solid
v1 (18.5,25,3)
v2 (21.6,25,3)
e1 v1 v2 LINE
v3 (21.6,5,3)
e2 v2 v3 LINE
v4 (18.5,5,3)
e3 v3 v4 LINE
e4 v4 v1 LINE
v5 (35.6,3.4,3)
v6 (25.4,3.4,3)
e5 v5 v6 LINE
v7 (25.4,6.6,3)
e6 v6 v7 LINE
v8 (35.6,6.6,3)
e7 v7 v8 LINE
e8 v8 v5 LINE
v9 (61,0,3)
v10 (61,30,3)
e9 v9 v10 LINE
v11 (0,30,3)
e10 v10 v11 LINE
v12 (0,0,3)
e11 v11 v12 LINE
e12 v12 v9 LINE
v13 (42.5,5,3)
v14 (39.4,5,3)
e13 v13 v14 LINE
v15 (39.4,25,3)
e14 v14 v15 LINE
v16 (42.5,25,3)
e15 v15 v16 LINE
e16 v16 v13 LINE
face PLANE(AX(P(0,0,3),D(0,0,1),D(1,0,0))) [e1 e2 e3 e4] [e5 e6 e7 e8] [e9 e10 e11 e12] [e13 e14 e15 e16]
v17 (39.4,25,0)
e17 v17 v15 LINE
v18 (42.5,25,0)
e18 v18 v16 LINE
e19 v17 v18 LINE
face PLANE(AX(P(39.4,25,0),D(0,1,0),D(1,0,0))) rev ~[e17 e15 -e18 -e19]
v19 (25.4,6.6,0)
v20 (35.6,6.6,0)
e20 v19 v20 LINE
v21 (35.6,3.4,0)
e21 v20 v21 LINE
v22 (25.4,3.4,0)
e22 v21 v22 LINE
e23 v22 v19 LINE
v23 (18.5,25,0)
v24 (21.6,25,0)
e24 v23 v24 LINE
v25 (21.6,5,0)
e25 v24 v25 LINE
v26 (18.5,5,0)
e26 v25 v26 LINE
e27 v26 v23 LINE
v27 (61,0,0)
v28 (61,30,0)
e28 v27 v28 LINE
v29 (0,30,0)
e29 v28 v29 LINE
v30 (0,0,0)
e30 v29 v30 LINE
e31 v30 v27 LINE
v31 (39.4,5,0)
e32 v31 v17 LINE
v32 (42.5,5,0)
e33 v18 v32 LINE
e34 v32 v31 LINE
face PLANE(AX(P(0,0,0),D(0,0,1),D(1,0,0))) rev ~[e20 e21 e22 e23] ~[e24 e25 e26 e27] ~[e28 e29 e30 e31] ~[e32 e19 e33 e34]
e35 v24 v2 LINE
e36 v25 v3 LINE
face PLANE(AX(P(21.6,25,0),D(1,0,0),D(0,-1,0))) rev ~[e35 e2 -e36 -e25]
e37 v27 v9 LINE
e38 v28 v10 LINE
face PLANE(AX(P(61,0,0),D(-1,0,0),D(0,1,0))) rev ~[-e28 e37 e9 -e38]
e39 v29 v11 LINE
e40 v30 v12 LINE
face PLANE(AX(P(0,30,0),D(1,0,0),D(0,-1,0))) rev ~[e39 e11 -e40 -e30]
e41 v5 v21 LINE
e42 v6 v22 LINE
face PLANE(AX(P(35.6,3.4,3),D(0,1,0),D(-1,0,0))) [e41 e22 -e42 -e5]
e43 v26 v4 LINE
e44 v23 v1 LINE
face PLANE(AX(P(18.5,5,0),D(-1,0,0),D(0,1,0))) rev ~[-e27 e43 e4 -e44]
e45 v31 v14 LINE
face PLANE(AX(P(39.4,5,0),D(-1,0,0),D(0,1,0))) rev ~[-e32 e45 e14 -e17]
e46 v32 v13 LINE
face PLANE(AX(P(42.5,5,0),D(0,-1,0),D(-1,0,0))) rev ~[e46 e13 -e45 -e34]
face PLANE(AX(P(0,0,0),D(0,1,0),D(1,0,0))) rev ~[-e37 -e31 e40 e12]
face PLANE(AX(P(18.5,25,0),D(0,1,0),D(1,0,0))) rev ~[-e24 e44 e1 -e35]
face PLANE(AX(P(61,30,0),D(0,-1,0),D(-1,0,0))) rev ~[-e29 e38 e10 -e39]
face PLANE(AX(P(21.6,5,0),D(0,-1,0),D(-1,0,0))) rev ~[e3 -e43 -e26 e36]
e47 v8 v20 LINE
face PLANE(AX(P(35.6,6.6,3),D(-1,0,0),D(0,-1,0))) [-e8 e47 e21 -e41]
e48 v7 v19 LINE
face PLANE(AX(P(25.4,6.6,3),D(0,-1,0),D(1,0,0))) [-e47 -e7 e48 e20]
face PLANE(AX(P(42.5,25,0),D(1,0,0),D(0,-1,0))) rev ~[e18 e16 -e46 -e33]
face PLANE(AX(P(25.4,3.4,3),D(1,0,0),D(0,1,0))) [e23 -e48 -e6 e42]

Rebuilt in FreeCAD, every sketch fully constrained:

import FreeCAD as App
import Part
import Sketcher
Q = App.Units.Quantity


def add_polygon(sketch, points):
    """Adds a closed chain of lines whose ends are joined by coincident constraints."""
    first, n = sketch.GeometryCount, len(points)
    for a, b in zip(points, points[1:] + points[:1]):
        sketch.addGeometry(Part.LineSegment(App.Vector(*a, 0), App.Vector(*b, 0)), False)
    for i in range(n):
        sketch.addConstraint(Sketcher.Constraint("Coincident", first + i, 2, first + (i + 1) % n, 1))

doc = App.newDocument("Part")
params = doc.addObject("Spreadsheet::Sheet", "Params")
for row, (alias, value) in enumerate([
    ("sketch1_width", "61 mm"),
    ("sketch1_height", "30 mm"),
    ("sketch1_width2", "3.1 mm"),
    ("sketch1_height2", "20 mm"),
    ("pad1_length", "3 mm"),
    ("sketch2_width", "10.2 mm"),
    ("sketch2_height", "3.2 mm"),
    ("pocket1_length", "3 mm"),
], start=1):
    params.set(f"A{row}", alias)
    params.set(f"B{row}", "=" + value)
    params.setAlias(f"B{row}", alias)

body = doc.addObject("PartDesign::Body", "Body")

# Sketch on XY plane
sketch1 = body.newObject("Sketcher::SketchObject", "Sketch")
sketch1.AttachmentSupport = (doc.getObject("XY_Plane"), [""])
sketch1.MapMode = "FlatFace"
add_polygon(sketch1, [(0, 30), (0, 0), (61, 0), (61, 30)])  # lines 0-3
add_polygon(sketch1, [(18.5, 5), (18.5, 25), (21.6, 25), (21.6, 5)])  # lines 4-7
add_polygon(sketch1, [(39.4, 5), (39.4, 25), (42.5, 25), (42.5, 5)])  # lines 8-11
sketch1.addConstraint([
    Sketcher.Constraint("Vertical", 0),
    Sketcher.Constraint("Horizontal", 1),
    Sketcher.Constraint("Vertical", 2),
    Sketcher.Constraint("Horizontal", 3),
    Sketcher.Constraint("Vertical", 4),
    Sketcher.Constraint("Horizontal", 5),
    Sketcher.Constraint("Vertical", 6),
    Sketcher.Constraint("Horizontal", 7),
    Sketcher.Constraint("Vertical", 8),
    Sketcher.Constraint("Horizontal", 9),
    Sketcher.Constraint("Vertical", 10),
    Sketcher.Constraint("Horizontal", 11),
    Sketcher.Constraint("Coincident", 0, 2, -1, 1),
    Sketcher.Constraint("Horizontal", 5, 2, 8, 2),
    Sketcher.Constraint("Horizontal", 7, 2, 10, 2),
    Sketcher.Constraint("Equal", 7, 9),
    Sketcher.Constraint("DistanceX", 1, 1, 1, 2, Q("61 mm")),
    Sketcher.Constraint("DistanceY", 0, 2, 0, 1, Q("30 mm")),
    Sketcher.Constraint("DistanceX", 5, 1, 5, 2, Q("3.1 mm")),
    Sketcher.Constraint("DistanceX", 4, 2, 9, 2, Q("24 mm")),
    Sketcher.Constraint("DistanceY", 4, 1, 4, 2, Q("20 mm")),
    Sketcher.Constraint("DistanceY", -1, 1, 4, 2, Q("25 mm")),
    Sketcher.Constraint("DistanceX", -1, 1, 4, 2, Q("18.5 mm")),
])
sketch1.setExpression("Constraints[28]", "Params.sketch1_width")
sketch1.setExpression("Constraints[29]", "Params.sketch1_height")
sketch1.setExpression("Constraints[30]", "Params.sketch1_width2")
sketch1.setExpression("Constraints[32]", "Params.sketch1_height2")
pad1 = body.newObject("PartDesign::Pad", "Pad")
pad1.Profile = sketch1
pad1.setExpression("Length", "Params.pad1_length")

# Sketch on XY plane
sketch2 = body.newObject("Sketcher::SketchObject", "Sketch001")
sketch2.AttachmentSupport = (doc.getObject("XY_Plane"), [""])
sketch2.MapMode = "FlatFace"
sketch2.AttachmentOffset = App.Placement(App.Vector(0, 0, 3), App.Rotation())
add_polygon(sketch2, [(35.6, 6.6), (25.4, 6.6), (25.4, 3.4), (35.6, 3.4)])  # lines 0-3
sketch2.addConstraint([
    Sketcher.Constraint("Horizontal", 0),
    Sketcher.Constraint("Vertical", 1),
    Sketcher.Constraint("Horizontal", 2),
    Sketcher.Constraint("Vertical", 3),
    Sketcher.Constraint("DistanceX", 0, 2, 0, 1, Q("10.2 mm")),
    Sketcher.Constraint("DistanceY", 1, 2, 1, 1, Q("3.2 mm")),
    Sketcher.Constraint("DistanceX", -1, 1, 0, 2, Q("25.4 mm")),
    Sketcher.Constraint("DistanceY", -1, 1, 0, 2, Q("6.6 mm")),
])
sketch2.setExpression("Constraints[8]", "Params.sketch2_width")
sketch2.setExpression("Constraints[9]", "Params.sketch2_height")
pocket1 = body.newObject("PartDesign::Pocket", "Pocket")
pocket1.Profile = sketch2
pocket1.setExpression("Length", "Params.pocket1_length")

doc.recompute()
